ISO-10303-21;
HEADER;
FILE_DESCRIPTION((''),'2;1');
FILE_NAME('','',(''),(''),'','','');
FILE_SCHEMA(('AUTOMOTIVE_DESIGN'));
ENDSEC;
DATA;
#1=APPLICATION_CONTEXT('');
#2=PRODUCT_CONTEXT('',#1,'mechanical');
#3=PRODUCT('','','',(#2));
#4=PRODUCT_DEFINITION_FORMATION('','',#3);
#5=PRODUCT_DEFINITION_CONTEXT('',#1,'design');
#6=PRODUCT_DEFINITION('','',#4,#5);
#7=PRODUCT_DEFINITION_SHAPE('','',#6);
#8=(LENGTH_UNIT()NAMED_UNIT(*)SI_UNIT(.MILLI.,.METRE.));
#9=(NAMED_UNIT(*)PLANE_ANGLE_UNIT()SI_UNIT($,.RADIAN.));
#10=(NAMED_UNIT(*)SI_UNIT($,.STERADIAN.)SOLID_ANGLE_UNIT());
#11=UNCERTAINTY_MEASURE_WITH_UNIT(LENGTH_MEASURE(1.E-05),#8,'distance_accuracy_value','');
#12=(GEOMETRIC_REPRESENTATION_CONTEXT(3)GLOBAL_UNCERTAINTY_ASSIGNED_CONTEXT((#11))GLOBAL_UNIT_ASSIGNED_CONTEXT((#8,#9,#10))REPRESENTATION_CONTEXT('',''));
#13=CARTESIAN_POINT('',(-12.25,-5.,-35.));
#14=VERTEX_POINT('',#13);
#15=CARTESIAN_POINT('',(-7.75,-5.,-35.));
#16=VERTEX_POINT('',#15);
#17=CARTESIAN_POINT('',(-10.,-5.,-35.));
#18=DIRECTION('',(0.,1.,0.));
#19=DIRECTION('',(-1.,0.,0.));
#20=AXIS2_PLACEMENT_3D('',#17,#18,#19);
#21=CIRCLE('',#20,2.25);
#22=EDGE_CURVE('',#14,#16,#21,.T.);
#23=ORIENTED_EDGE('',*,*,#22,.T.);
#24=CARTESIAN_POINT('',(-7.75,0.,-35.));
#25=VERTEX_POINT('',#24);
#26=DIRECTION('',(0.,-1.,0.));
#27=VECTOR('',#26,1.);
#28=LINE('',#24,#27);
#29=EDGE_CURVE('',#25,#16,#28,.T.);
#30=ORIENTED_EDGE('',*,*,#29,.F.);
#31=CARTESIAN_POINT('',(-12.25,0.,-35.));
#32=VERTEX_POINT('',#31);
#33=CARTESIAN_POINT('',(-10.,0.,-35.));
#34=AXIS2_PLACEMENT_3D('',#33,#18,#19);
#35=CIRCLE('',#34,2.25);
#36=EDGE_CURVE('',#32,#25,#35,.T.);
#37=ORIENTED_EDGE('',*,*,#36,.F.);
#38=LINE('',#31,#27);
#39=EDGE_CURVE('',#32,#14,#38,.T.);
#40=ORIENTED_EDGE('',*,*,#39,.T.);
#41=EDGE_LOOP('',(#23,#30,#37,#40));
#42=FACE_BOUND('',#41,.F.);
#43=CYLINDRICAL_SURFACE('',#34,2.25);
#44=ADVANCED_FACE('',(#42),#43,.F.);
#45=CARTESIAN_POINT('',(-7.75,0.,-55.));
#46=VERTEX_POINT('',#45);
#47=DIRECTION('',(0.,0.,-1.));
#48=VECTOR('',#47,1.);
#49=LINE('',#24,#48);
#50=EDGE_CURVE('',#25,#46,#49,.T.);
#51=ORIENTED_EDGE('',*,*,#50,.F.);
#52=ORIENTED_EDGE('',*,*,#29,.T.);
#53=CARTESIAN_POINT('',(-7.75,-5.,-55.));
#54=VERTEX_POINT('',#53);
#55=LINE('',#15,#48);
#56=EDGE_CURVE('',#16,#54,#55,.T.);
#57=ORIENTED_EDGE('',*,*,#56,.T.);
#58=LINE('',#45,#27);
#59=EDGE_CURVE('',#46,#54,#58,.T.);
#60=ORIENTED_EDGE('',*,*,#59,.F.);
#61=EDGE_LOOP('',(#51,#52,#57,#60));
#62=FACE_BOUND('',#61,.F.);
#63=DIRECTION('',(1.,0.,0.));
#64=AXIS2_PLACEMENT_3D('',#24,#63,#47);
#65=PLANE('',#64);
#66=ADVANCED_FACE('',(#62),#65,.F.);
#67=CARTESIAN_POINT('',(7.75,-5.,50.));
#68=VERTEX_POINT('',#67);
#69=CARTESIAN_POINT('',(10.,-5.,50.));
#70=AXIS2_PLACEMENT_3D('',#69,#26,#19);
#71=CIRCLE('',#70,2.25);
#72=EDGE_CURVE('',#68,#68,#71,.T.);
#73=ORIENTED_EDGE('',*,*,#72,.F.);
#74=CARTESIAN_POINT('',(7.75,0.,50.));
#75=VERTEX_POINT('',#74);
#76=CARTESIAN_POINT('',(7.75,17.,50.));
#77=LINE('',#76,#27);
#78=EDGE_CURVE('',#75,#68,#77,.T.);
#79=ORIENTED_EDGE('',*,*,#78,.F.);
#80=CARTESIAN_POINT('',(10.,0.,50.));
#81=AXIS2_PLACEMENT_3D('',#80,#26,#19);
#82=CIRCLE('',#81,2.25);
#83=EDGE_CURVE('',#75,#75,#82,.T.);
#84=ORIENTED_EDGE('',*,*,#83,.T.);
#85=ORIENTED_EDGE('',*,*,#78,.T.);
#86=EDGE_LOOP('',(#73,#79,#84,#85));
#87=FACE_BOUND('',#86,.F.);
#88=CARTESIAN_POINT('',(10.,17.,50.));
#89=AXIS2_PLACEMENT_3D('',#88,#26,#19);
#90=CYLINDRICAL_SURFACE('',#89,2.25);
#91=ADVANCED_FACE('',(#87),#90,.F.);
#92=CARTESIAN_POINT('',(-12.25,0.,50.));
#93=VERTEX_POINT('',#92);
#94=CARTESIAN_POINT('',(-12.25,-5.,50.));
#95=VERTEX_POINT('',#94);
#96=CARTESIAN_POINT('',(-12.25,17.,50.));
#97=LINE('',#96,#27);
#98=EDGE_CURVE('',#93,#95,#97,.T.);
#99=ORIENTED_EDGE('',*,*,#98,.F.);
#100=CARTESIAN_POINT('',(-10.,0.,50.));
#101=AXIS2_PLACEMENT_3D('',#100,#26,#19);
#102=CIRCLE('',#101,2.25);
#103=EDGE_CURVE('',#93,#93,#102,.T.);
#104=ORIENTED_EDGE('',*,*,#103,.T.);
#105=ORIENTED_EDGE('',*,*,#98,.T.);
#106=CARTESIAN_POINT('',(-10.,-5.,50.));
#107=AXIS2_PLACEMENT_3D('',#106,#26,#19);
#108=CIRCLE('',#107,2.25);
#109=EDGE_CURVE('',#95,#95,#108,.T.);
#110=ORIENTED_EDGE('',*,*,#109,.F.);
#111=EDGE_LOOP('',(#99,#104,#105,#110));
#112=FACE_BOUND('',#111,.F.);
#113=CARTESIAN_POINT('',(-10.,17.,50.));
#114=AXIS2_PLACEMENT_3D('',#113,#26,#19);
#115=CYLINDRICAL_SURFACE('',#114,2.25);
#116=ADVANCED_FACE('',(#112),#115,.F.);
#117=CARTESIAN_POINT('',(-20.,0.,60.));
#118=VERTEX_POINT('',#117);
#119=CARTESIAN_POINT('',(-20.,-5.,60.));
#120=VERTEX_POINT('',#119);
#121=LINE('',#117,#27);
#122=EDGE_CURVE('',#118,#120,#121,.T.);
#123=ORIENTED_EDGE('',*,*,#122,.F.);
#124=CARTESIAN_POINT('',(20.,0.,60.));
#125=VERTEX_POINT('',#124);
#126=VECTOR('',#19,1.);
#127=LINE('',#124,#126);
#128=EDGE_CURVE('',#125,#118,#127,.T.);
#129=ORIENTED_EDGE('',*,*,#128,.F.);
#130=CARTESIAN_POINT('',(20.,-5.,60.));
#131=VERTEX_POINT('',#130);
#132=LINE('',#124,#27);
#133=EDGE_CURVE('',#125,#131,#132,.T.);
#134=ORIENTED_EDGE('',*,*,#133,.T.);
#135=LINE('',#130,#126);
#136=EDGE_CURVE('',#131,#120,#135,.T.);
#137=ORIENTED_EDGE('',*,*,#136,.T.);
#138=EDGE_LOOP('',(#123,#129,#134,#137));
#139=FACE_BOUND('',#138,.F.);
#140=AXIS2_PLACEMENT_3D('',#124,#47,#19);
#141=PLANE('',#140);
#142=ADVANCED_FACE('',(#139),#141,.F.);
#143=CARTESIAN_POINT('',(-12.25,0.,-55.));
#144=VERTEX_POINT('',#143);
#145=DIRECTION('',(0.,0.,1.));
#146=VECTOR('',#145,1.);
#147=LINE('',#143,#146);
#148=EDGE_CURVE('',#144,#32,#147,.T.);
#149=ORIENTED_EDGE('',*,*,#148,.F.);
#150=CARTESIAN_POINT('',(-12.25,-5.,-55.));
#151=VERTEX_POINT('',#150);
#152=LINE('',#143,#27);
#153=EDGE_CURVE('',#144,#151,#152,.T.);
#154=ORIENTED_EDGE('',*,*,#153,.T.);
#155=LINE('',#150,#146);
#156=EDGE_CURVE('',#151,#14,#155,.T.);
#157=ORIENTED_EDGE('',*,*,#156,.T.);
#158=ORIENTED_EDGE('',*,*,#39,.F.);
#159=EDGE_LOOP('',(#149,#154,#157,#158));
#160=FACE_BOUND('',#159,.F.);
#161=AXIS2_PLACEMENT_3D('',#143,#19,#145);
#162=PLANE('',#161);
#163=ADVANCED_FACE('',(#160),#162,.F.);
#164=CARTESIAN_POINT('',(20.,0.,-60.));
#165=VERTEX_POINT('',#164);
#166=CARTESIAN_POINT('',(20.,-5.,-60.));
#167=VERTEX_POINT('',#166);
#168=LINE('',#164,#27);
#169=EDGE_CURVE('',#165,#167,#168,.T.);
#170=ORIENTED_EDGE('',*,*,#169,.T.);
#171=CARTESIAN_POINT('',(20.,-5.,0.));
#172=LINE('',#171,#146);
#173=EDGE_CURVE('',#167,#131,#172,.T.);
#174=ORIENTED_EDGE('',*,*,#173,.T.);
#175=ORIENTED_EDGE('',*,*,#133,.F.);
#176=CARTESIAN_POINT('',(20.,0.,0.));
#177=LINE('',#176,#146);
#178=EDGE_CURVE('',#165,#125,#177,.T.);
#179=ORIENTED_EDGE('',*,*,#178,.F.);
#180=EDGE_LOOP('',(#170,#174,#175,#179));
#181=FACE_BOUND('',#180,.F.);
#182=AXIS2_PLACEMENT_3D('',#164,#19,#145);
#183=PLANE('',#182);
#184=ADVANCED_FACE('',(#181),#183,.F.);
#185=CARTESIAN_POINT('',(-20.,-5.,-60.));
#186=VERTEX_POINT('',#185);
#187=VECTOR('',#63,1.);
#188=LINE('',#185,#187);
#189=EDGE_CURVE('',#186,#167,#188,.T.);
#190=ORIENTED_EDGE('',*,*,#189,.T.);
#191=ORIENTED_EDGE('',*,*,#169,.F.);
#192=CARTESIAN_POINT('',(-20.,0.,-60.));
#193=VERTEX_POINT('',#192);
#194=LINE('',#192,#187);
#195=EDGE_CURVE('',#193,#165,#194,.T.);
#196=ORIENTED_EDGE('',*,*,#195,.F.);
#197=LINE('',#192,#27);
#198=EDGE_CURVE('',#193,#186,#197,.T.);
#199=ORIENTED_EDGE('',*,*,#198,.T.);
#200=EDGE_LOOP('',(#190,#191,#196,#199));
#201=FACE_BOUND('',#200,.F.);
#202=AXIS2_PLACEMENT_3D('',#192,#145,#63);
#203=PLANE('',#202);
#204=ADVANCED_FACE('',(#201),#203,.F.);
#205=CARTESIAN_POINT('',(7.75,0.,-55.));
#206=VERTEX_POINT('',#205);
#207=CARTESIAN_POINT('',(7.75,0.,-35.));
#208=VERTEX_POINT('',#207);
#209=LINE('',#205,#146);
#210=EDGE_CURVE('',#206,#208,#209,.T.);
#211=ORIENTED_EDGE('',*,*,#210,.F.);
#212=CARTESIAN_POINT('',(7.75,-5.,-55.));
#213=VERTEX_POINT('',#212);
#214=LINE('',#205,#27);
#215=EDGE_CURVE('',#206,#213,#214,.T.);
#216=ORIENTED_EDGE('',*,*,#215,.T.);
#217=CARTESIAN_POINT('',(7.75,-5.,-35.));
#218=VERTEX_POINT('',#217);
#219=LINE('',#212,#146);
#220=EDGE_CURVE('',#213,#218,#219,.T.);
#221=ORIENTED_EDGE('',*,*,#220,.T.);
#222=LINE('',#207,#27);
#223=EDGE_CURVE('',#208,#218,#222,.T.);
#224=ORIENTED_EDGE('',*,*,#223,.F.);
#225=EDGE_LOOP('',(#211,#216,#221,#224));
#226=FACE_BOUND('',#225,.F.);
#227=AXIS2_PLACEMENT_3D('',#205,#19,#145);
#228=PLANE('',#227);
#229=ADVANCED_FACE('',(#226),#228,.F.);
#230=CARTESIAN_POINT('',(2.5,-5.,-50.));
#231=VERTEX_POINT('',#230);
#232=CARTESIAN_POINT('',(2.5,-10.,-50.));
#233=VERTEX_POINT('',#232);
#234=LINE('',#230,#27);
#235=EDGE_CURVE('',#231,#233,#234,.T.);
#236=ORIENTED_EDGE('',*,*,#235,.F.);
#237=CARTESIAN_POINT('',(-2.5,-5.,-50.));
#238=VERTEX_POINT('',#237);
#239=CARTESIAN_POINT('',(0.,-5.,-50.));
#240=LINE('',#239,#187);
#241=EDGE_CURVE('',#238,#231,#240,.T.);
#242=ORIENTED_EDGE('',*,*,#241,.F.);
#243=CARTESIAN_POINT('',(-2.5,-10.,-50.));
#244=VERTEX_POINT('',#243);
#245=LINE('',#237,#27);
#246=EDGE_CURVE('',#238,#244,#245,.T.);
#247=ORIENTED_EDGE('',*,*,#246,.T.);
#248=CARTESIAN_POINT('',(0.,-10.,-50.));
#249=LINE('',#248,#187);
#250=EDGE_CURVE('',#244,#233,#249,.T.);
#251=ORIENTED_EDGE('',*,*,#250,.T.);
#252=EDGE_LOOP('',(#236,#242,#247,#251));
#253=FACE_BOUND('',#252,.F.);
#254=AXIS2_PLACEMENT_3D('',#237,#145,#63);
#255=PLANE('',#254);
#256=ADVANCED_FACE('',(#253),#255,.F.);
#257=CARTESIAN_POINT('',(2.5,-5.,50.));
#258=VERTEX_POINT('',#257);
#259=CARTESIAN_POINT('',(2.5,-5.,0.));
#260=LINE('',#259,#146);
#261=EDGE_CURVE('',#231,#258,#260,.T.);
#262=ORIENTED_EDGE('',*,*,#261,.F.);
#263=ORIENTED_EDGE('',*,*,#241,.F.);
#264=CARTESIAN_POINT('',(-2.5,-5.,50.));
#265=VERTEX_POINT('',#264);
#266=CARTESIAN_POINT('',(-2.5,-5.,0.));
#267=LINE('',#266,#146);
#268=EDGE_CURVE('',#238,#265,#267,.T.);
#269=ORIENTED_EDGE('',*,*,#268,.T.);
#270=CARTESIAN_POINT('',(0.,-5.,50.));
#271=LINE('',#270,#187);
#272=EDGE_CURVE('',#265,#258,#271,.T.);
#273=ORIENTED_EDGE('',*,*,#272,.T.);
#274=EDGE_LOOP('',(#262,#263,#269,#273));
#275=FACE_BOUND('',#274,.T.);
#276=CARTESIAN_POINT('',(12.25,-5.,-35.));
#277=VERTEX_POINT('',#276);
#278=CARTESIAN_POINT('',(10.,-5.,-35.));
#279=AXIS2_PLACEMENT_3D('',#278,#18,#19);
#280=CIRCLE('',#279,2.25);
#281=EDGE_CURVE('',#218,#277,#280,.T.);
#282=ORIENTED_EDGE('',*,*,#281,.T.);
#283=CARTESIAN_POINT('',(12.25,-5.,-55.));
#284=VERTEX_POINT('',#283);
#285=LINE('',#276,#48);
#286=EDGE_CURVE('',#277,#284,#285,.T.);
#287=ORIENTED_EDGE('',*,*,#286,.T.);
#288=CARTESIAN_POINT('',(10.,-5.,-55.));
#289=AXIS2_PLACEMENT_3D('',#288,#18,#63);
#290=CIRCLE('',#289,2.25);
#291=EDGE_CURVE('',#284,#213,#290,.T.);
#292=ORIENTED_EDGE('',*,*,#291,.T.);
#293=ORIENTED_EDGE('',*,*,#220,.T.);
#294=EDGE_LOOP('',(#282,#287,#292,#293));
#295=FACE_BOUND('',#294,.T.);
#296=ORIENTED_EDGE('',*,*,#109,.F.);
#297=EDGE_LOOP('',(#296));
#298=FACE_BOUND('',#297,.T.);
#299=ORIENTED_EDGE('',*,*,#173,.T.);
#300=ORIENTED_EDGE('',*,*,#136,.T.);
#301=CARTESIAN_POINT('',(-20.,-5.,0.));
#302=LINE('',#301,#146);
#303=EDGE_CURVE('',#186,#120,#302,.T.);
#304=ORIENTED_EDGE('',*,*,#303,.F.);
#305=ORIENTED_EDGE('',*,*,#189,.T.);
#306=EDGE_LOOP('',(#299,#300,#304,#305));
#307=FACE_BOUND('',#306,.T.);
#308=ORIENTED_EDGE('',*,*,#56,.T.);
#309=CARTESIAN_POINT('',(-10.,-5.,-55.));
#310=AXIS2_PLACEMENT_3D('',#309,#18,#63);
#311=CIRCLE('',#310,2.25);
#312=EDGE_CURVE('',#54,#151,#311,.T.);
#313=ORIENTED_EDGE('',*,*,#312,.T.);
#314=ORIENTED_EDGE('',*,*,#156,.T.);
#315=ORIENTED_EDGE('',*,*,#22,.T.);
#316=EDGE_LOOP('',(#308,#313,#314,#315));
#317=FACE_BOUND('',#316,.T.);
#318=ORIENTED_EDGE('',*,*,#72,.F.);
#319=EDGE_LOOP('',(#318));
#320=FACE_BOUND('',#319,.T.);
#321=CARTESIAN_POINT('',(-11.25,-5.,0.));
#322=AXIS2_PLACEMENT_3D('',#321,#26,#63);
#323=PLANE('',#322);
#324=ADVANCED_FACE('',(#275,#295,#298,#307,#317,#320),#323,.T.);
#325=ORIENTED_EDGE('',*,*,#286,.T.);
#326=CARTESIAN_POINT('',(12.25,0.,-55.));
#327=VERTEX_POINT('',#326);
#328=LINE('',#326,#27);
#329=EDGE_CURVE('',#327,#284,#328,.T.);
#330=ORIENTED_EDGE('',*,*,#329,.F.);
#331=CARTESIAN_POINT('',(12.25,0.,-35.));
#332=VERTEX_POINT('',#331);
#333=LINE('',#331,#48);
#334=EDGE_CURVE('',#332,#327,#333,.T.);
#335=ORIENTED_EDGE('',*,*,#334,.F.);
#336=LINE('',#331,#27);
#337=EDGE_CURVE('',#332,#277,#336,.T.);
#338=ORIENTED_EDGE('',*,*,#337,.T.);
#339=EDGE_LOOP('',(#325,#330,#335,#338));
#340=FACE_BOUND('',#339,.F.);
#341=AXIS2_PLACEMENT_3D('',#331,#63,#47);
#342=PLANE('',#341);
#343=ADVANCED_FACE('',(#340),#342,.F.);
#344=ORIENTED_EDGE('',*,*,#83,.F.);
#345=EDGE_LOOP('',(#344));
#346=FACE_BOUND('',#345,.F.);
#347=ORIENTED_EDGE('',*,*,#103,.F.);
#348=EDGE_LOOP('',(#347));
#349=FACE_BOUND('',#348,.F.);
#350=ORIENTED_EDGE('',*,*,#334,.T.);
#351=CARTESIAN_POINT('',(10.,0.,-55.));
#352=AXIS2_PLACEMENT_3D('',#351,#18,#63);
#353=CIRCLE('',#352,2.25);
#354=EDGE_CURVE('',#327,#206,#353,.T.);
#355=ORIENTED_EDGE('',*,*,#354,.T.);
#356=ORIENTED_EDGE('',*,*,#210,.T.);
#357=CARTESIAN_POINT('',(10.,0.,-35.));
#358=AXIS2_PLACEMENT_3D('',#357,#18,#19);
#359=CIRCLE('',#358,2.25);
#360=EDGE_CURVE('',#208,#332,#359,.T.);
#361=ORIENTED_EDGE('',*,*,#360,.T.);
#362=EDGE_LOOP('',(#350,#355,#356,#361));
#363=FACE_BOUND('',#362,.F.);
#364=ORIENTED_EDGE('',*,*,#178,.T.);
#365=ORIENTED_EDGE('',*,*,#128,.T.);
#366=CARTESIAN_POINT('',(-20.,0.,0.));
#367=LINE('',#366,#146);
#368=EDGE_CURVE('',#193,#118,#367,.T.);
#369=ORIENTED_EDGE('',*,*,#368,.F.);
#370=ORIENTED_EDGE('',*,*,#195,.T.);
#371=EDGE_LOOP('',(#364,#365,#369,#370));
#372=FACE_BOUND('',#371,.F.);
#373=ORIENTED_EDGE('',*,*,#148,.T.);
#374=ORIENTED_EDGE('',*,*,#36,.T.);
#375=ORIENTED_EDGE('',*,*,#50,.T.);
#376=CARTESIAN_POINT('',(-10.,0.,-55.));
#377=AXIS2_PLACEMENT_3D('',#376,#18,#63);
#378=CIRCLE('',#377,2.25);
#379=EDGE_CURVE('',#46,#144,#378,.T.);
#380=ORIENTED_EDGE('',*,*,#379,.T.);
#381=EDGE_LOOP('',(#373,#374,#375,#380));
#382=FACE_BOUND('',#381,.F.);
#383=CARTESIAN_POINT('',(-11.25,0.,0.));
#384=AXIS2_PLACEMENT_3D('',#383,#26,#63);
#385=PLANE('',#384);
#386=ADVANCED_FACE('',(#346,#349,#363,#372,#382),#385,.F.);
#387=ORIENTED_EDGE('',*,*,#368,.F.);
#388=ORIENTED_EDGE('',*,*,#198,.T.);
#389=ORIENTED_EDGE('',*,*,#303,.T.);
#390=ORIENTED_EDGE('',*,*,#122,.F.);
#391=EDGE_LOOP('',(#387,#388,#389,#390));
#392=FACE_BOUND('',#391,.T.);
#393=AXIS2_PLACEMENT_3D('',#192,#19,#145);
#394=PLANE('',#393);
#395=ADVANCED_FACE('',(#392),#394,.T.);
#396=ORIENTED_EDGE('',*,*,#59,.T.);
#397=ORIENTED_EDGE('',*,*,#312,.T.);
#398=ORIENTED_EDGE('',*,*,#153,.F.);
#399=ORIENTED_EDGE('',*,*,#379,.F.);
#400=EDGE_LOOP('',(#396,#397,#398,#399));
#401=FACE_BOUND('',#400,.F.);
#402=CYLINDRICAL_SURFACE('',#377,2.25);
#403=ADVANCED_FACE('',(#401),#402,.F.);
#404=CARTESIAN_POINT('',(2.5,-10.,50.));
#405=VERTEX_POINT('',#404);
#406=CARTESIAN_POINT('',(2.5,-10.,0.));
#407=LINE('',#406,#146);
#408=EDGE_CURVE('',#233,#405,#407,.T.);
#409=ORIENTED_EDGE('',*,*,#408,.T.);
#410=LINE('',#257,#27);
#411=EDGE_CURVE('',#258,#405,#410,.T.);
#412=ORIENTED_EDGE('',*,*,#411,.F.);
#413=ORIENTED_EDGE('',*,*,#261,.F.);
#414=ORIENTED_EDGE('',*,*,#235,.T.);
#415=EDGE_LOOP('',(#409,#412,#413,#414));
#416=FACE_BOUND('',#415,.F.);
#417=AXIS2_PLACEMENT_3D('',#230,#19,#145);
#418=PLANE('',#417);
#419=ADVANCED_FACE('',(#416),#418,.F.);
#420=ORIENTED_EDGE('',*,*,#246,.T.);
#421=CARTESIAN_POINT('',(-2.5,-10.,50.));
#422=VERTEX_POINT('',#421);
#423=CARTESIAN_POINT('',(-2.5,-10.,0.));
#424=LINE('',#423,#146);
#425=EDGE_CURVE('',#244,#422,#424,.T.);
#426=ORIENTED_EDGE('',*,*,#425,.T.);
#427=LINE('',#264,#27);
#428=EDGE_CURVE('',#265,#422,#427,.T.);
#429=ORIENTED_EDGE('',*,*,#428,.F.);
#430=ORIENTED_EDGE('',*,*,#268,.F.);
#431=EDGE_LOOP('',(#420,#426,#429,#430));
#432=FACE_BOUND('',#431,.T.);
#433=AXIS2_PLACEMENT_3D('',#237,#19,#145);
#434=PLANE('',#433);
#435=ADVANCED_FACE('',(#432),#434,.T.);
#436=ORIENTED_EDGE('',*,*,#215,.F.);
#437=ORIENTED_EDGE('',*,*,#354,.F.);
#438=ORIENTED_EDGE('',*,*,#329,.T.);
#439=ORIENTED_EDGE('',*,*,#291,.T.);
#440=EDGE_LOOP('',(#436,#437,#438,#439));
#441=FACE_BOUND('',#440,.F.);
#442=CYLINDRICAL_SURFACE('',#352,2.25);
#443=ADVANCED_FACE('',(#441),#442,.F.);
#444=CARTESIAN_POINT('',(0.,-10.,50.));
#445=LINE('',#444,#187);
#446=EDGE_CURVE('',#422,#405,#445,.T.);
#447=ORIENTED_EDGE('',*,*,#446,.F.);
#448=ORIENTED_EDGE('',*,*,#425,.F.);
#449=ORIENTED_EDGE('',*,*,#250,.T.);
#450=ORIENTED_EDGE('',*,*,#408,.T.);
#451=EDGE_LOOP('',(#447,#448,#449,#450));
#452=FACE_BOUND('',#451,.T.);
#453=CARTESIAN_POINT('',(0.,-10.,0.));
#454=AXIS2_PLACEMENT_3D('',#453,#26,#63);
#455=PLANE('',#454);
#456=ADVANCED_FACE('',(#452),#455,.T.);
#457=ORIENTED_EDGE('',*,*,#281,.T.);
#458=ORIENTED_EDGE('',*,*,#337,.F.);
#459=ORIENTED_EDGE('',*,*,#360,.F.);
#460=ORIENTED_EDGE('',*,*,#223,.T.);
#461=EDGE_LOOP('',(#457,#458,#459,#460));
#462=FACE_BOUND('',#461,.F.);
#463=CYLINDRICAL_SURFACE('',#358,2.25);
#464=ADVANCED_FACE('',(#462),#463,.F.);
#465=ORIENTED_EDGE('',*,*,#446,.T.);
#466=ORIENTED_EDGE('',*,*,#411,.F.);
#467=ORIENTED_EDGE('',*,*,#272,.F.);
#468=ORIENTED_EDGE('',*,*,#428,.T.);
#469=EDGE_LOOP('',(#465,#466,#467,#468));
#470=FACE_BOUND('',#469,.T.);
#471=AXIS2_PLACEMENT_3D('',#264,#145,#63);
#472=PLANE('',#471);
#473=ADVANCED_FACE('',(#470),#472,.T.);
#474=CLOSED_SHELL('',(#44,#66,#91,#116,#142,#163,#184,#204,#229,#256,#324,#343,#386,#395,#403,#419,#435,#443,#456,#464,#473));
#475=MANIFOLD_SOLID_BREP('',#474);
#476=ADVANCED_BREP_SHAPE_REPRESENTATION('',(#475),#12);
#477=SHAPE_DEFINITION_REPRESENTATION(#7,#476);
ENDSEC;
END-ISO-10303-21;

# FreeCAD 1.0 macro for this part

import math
import FreeCAD as App
import Part
import Sketcher

V = App.Vector

doc = App.newDocument("Part")
body = doc.addObject("PartDesign::Body", "Body")

sketch1 = body.newObject("Sketcher::SketchObject", "Sketch")
sketch1.AttachmentSupport = (doc.getObject("XZ_Plane"), [""])
sketch1.MapMode = "FlatFace"
sketch1.addGeometry([
    Part.LineSegment(V(-20, 60, 0), V(-20, -60, 0)),
    Part.LineSegment(V(-20, -60, 0), V(20, -60, 0)),
    Part.LineSegment(V(20, -60, 0), V(20, 60, 0)),
    Part.LineSegment(V(20, 60, 0), V(-20, 60, 0)),
    Part.ArcOfCircle(Part.Circle(V(-10, -35, 0), V(0, 0, 1), 2.2), math.radians(0), math.radians(180)),
    Part.LineSegment(V(-7.8, -35, 0), V(-7.8, -55, 0)),
    Part.ArcOfCircle(Part.Circle(V(-10, -55, 0), V(0, 0, 1), 2.2), math.radians(180), math.radians(360)),
    Part.LineSegment(V(-12.2, -55, 0), V(-12.2, -35, 0)),
    Part.ArcOfCircle(Part.Circle(V(10, -35, 0), V(0, 0, 1), 2.2), math.radians(0), math.radians(180)),
    Part.LineSegment(V(12.2, -35, 0), V(12.2, -55, 0)),
    Part.ArcOfCircle(Part.Circle(V(10, -55, 0), V(0, 0, 1), 2.2), math.radians(180), math.radians(360)),
    Part.LineSegment(V(7.8, -55, 0), V(7.8, -35, 0)),
], False)
sketch1.addConstraint([
    Sketcher.Constraint("Coincident", 0, 2, 1, 1),
    Sketcher.Constraint("Coincident", 1, 2, 2, 1),
    Sketcher.Constraint("Coincident", 2, 2, 3, 1),
    Sketcher.Constraint("Coincident", 3, 2, 0, 1),
    Sketcher.Constraint("Tangent", 4, 1, 5, 1),
    Sketcher.Constraint("Tangent", 5, 2, 6, 2),
    Sketcher.Constraint("Tangent", 6, 1, 7, 1),
    Sketcher.Constraint("Tangent", 7, 2, 4, 2),
    Sketcher.Constraint("Tangent", 8, 1, 9, 1),
    Sketcher.Constraint("Tangent", 9, 2, 10, 2),
    Sketcher.Constraint("Tangent", 10, 1, 11, 1),
    Sketcher.Constraint("Tangent", 11, 2, 8, 2),
    Sketcher.Constraint("Vertical", 0),
    Sketcher.Constraint("Horizontal", 1),
    Sketcher.Constraint("Vertical", 2),
    Sketcher.Constraint("Horizontal", 3),
    Sketcher.Constraint("Vertical", 5),
    Sketcher.Constraint("Vertical", 7),
    Sketcher.Constraint("Vertical", 9),
    Sketcher.Constraint("Vertical", 11),
    Sketcher.Constraint("Equal", 6, 8),
    Sketcher.Constraint("Symmetric", 0, 2, 2, 2, -1, 1),
    Sketcher.Constraint("Symmetric", 4, 3, 8, 3, -2),
    Sketcher.Constraint("Horizontal", 6, 3, 10, 3),
    Sketcher.Constraint("DistanceX", 1, 1, 1, 2, 40.0),
    Sketcher.Constraint("DistanceY", 0, 2, 0, 1, 120.0),
    Sketcher.Constraint("DistanceY", 5, 2, 5, 1, 20.0),
    Sketcher.Constraint("Radius", 4, 2.25),
    Sketcher.Constraint("DistanceX", 4, 3, -1, 1, 10.0),
    Sketcher.Constraint("DistanceY", 4, 3, -1, 1, 35.0),
])
pad1 = body.newObject("PartDesign::Pad", "Pad")
pad1.Profile = sketch1
pad1.Length = 5

sketch2 = body.newObject("Sketcher::SketchObject", "Sketch001")
sketch2.AttachmentSupport = (doc.getObject("XZ_Plane"), [""])
sketch2.MapMode = "FlatFace"
sketch2.AttachmentOffset = App.Placement(V(0, 0, 5), App.Rotation())
sketch2.addGeometry([
    Part.LineSegment(V(-2, 50, 0), V(-2, -50, 0)),
    Part.LineSegment(V(-2, -50, 0), V(2, -50, 0)),
    Part.LineSegment(V(2, -50, 0), V(2, 50, 0)),
    Part.LineSegment(V(2, 50, 0), V(-2, 50, 0)),
], False)
sketch2.addConstraint([
    Sketcher.Constraint("Coincident", 0, 2, 1, 1),
    Sketcher.Constraint("Coincident", 1, 2, 2, 1),
    Sketcher.Constraint("Coincident", 2, 2, 3, 1),
    Sketcher.Constraint("Coincident", 3, 2, 0, 1),
    Sketcher.Constraint("Vertical", 0),
    Sketcher.Constraint("Horizontal", 1),
    Sketcher.Constraint("Vertical", 2),
    Sketcher.Constraint("Horizontal", 3),
    Sketcher.Constraint("Symmetric", 0, 2, 2, 2, -1, 1),
    Sketcher.Constraint("DistanceX", 1, 1, 1, 2, 5.0),
    Sketcher.Constraint("DistanceY", 0, 2, 0, 1, 100.0),
])
pad2 = body.newObject("PartDesign::Pad", "Pad001")
pad2.Profile = sketch2
pad2.Length = 5

sketch3 = body.newObject("Sketcher::SketchObject", "Sketch002")
sketch3.AttachmentSupport = (doc.getObject("XZ_Plane"), [""])
sketch3.MapMode = "FlatFace"
sketch3.addGeometry([
    Part.Circle(V(10, 50, 0), V(0, 0, 1), 2.2),
    Part.Circle(V(-10, 50, 0), V(0, 0, 1), 2.2),
], False)
sketch3.addConstraint([
    Sketcher.Constraint("Equal", 0, 1),
    Sketcher.Constraint("Symmetric", 0, 3, 1, 3, -2),
    Sketcher.Constraint("Diameter", 0, 4.5),
    Sketcher.Constraint("DistanceX", -1, 1, 0, 3, 10.0),
    Sketcher.Constraint("DistanceY", -1, 1, 0, 3, 50.0),
])
doc.recompute()
hole = body.newObject("PartDesign::Hole", "Hole")
hole.Profile = sketch3
hole.ThreadType = "None"
hole.Diameter = 4.5
hole.DepthType = "Dimension"
hole.Depth = 17
hole.DrillPoint = "Angled"
hole.DrillPointAngle = 118
hole.Reversed = True

doc.recompute()
